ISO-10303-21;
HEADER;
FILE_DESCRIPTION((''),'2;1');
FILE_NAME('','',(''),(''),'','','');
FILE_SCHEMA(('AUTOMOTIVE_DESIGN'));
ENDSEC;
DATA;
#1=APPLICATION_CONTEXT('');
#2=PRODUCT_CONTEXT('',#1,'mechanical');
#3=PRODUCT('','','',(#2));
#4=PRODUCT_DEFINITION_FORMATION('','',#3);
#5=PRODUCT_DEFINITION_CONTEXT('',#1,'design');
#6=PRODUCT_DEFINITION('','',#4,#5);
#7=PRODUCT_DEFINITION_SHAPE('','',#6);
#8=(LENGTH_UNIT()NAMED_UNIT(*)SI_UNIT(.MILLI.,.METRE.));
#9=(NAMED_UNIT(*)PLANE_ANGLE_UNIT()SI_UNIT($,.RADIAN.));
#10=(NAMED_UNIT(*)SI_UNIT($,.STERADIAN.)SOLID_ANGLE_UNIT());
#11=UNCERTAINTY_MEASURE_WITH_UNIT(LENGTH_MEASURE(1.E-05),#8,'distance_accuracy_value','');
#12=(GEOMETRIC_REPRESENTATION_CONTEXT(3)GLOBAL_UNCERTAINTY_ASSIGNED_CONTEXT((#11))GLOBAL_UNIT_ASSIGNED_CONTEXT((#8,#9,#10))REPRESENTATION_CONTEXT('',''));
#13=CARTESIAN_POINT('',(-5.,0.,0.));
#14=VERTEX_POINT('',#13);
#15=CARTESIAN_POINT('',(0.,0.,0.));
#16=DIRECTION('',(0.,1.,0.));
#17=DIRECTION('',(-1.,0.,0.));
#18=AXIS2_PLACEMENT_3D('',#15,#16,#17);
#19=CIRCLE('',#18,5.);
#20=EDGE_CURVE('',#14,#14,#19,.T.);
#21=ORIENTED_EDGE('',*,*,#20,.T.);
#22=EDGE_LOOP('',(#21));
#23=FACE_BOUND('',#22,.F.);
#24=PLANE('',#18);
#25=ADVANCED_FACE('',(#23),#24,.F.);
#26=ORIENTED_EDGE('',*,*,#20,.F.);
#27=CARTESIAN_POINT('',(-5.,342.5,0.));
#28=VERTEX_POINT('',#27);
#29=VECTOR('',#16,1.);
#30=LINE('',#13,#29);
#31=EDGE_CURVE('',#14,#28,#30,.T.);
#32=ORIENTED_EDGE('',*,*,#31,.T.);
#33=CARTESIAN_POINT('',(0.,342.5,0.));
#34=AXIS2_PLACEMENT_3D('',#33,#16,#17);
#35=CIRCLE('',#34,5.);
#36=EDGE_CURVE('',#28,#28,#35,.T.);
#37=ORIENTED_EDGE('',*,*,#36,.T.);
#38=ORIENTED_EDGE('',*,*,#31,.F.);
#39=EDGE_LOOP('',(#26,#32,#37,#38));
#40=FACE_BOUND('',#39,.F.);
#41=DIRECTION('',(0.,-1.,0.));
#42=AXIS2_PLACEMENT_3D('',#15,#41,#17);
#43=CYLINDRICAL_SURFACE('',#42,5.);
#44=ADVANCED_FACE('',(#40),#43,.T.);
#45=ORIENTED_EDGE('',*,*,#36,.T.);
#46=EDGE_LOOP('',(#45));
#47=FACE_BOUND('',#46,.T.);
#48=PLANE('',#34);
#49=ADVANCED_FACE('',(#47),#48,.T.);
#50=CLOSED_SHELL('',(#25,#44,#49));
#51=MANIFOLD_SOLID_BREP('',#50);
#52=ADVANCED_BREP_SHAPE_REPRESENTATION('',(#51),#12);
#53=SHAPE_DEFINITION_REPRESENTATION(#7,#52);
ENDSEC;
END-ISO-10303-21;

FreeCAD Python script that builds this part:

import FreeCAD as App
import Part
import Sketcher
from FreeCAD import Vector

doc = App.newDocument("Part")
body = doc.addObject("PartDesign::Body", "Body")

# Sketch on XZ plane
sketch1 = doc.addObject("Sketcher::SketchObject", "Sketch")
body.addObject(sketch1)
sketch1.AttachmentSupport = (doc.XZ_Plane, [""])
sketch1.MapMode = "FlatFace"
sketch1.addGeometry(Part.Circle(Vector(0, 0, 0), Vector(0, 0, 1), 5), False)
sketch1.addConstraint(Sketcher.Constraint("Coincident", 0, 3, -1, 1))
sketch1.addConstraint(Sketcher.Constraint("Diameter", 0, 10.0))
pad1 = doc.addObject("PartDesign::Pad", "Pad")
body.addObject(pad1)
pad1.Profile = sketch1
pad1.Length = 342.5
pad1.Reversed = True

doc.recompute()
